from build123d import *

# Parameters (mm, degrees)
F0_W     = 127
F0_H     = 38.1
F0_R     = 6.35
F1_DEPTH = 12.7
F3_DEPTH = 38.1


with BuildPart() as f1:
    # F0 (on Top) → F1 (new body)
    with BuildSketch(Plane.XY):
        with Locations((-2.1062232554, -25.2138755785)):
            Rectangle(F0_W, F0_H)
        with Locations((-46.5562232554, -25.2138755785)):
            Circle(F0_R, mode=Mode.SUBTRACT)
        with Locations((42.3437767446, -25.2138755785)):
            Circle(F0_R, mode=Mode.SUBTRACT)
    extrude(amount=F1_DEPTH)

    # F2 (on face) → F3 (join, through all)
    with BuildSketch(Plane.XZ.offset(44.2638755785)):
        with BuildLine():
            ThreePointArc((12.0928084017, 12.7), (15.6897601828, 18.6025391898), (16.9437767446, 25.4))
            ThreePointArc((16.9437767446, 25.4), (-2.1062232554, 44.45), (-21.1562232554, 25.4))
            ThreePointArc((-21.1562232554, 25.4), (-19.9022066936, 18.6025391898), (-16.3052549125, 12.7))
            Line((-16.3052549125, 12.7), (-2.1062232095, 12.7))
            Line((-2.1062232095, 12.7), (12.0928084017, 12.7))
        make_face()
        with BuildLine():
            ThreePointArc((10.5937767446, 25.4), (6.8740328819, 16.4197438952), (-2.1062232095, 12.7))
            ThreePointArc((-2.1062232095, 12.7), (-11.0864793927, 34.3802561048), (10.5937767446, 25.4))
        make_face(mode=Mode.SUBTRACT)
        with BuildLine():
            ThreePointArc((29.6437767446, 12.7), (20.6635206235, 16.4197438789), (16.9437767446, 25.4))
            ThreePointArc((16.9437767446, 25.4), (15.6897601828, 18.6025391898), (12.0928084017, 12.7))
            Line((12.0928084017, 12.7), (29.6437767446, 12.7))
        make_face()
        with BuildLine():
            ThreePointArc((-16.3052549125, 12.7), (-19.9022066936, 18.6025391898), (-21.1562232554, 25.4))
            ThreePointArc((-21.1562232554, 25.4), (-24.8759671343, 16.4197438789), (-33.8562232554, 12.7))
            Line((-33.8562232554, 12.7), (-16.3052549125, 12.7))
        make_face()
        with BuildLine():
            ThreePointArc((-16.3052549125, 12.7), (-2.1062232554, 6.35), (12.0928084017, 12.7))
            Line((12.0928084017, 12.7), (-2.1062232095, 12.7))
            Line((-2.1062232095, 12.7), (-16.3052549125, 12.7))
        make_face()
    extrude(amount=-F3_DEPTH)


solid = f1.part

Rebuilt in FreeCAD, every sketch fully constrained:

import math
import FreeCAD as App
import Part
import Sketcher

V = App.Vector
Q = App.Units.Quantity

doc = App.newDocument("Part")
params = doc.addObject("Spreadsheet::Sheet", "Params")
for row, (alias, value) in enumerate([
    ("sketch1_diameter", "0.5 in"),
    ("sketch1_width", "5 in"),
    ("sketch1_height", "1.5 in"),
    ("pad1_length", "0.5 in"),
    ("sketch2_radius", "0.5 in"),
    ("sketch2_radius2", "0.75 in"),
    ("pad2_length", "1.5 in"),
], start=1):
    params.set(f"A{row}", alias)
    params.set(f"B{row}", "=" + value)
    params.setAlias(f"B{row}", alias)

body = doc.addObject("PartDesign::Body", "Body")

# Sketch on XY plane
sketch1 = body.newObject("Sketcher::SketchObject", "Sketch")
sketch1.AttachmentSupport = (doc.getObject("XY_Plane"), [""])
sketch1.MapMode = "FlatFace"
sketch1.addGeometry([
    Part.LineSegment(V(-66, -6, 0), V(-66, -44, 0)),  # 0
    Part.LineSegment(V(-66, -44, 0), V(61, -44, 0)),  # 1
    Part.LineSegment(V(61, -44, 0), V(61, -6, 0)),  # 2
    Part.LineSegment(V(61, -6, 0), V(-66, -6, 0)),  # 3
    Part.Circle(V(-47, -25, 0), V(0, 0, 1), 6),  # 4
    Part.Circle(V(42, -25, 0), V(0, 0, 1), 6),  # 5
], False)
sketch1.addConstraint([
    Sketcher.Constraint("Coincident", 0, 2, 1, 1),
    Sketcher.Constraint("Coincident", 1, 2, 2, 1),
    Sketcher.Constraint("Coincident", 2, 2, 3, 1),
    Sketcher.Constraint("Coincident", 3, 2, 0, 1),
    Sketcher.Constraint("Vertical", 0),
    Sketcher.Constraint("Horizontal", 1),
    Sketcher.Constraint("Vertical", 2),
    Sketcher.Constraint("Horizontal", 3),
    Sketcher.Constraint("Equal", 4, 5),
    Sketcher.Constraint("Horizontal", 4, 3, 5, 3),
    Sketcher.Constraint("Diameter", 4, Q("0.5 in")),
    Sketcher.Constraint("DistanceX", 1, 1, 1, 2, Q("5 in")),
    Sketcher.Constraint("DistanceY", 0, 2, 0, 1, Q("1.5 in")),
    Sketcher.Constraint("DistanceX", 4, 3, 5, 3, Q("3.5 in")),
    Sketcher.Constraint("DistanceX", 0, 2, 4, 3, Q("0.75 in")),
    Sketcher.Constraint("DistanceY", 0, 2, 4, 3, Q("0.75 in")),
    Sketcher.Constraint("DistanceX", 4, 3, -1, 1, Q("46.556223 mm")),
    Sketcher.Constraint("DistanceY", 4, 3, -1, 1, Q("25.213876 mm")),
])
sketch1.setExpression("Constraints[10]", "Params.sketch1_diameter")
sketch1.setExpression("Constraints[11]", "Params.sketch1_width")
sketch1.setExpression("Constraints[12]", "Params.sketch1_height")
pad1 = body.newObject("PartDesign::Pad", "Pad")
pad1.Profile = sketch1
pad1.setExpression("Length", "Params.pad1_length")

# Sketch on XZ plane
sketch2 = body.newObject("Sketcher::SketchObject", "Sketch001")
sketch2.AttachmentSupport = (doc.getObject("XZ_Plane"), [""])
sketch2.MapMode = "FlatFace"
sketch2.AttachmentOffset = App.Placement(V(0, 0, 44.263876), App.Rotation())
sketch2.addGeometry([
    Part.LineSegment(V(-34, 13, 0), V(-16, 13, 0)),  # 0
    Part.ArcOfCircle(Part.Circle(V(-2, 25, 0), V(0, 0, 1), 19), math.radians(-138), math.radians(-42)),  # 1
    Part.LineSegment(V(12, 13, 0), V(30, 13, 0)),  # 2
    Part.ArcOfCircle(Part.Circle(V(30, 25, 0), V(0, 0, 1), 13), math.radians(180), math.radians(270)),  # 3
    Part.ArcOfCircle(Part.Circle(V(-2, 25, 0), V(0, 0, 1), 19), math.radians(0), math.radians(180)),  # 4
    Part.ArcOfCircle(Part.Circle(V(-34, 25, 0), V(0, 0, 1), 13), math.radians(-90), math.radians(0)),  # 5
    Part.ArcOfCircle(Part.Circle(V(-2, 25, 0), V(0, 0, 1), 13), math.radians(-90), math.radians(0)),  # 6
    Part.ArcOfCircle(Part.Circle(V(-2, 25, 0), V(0, 0, 1), 13), math.radians(0), math.radians(270)),  # 7
], False)
sketch2.addConstraint([
    Sketcher.Constraint("Coincident", 0, 2, 1, 1),
    Sketcher.Constraint("Coincident", 1, 2, 2, 1),
    Sketcher.Constraint("Tangent", 2, 2, 3, 2),
    Sketcher.Constraint("Tangent", 3, 1, 4, 1),
    Sketcher.Constraint("Tangent", 4, 2, 5, 2),
    Sketcher.Constraint("Tangent", 5, 1, 0, 1),
    Sketcher.Constraint("Tangent", 6, 1, 7, 2),
    Sketcher.Constraint("Coincident", 7, 1, 6, 2),
    Sketcher.Constraint("Horizontal", 0),
    Sketcher.Constraint("Horizontal", 2),
    Sketcher.Constraint("Coincident", 4, 3, 1, 3),
    Sketcher.Constraint("Coincident", 6, 3, 1, 3),
    Sketcher.Constraint("Equal", 1, 4),
    Sketcher.Constraint("Equal", 3, 5),
    Sketcher.Constraint("Equal", 5, 6),
    Sketcher.Constraint("Horizontal", 1, 3, 3, 3),
    Sketcher.Constraint("Horizontal", 4, 3, 5, 3),
    Sketcher.Constraint("Horizontal", 4, 2, 7, 1),
    Sketcher.Constraint("Vertical", 7, 3, 6, 1),
    Sketcher.Constraint("Radius", 3, Q("0.5 in")),
    Sketcher.Constraint("Radius", 1, Q("0.75 in")),
    Sketcher.Constraint("DistanceY", -1, 1, 1, 3, Q("1 in")),
    Sketcher.Constraint("DistanceX", -1, 1, 1, 2, Q("12.092808 mm")),
])
sketch2.setExpression("Constraints[19]", "Params.sketch2_radius")
sketch2.setExpression("Constraints[20]", "Params.sketch2_radius2")
pad2 = body.newObject("PartDesign::Pad", "Pad001")
pad2.Profile = sketch2
pad2.setExpression("Length", "Params.pad2_length")
pad2.Reversed = True

doc.recompute()
